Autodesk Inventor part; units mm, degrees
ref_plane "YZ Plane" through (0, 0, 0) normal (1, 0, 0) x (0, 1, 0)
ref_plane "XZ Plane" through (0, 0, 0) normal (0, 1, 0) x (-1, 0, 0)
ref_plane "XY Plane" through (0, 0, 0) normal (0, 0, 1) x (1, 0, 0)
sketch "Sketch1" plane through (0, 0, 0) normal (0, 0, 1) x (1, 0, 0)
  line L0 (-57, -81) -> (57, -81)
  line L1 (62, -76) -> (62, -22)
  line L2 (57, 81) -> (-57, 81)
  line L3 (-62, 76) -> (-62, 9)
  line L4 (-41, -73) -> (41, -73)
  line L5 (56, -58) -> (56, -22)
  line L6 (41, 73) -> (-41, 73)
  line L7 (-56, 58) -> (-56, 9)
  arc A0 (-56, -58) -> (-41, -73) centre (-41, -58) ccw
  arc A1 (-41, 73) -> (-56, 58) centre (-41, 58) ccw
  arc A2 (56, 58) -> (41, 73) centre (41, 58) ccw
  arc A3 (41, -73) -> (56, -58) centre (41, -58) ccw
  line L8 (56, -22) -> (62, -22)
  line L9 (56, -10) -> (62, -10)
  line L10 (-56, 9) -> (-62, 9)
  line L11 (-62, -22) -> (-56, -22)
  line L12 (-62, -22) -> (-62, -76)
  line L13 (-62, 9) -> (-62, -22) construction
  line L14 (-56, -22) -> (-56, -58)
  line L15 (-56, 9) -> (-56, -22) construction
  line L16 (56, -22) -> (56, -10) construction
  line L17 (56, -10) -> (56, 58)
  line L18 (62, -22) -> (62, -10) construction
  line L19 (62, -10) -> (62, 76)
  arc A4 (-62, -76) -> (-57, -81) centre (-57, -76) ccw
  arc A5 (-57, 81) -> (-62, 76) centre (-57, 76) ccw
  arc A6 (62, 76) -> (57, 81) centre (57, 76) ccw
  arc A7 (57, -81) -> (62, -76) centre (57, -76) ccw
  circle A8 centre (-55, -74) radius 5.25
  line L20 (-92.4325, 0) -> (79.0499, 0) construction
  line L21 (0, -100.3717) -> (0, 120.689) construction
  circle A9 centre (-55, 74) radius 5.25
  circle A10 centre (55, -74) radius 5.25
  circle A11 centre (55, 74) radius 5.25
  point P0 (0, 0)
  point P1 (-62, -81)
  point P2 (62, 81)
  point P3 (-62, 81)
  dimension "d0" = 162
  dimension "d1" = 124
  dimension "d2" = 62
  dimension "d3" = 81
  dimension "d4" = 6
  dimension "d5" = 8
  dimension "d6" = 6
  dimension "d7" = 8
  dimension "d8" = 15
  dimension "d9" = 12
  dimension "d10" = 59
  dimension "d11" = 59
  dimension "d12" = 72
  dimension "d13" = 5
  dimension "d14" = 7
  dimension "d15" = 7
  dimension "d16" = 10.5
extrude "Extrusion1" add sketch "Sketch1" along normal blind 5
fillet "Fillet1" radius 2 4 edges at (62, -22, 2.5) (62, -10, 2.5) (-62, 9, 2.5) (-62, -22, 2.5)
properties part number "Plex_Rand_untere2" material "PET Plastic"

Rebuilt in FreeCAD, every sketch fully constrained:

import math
import FreeCAD as App
import Part
import Sketcher

V = App.Vector
Q = App.Units.Quantity


def edges_at(feature, points):
    """Names of the edges that pass closest to the given points."""
    edges = feature.Shape.Edges
    near = lambda p: min(range(len(edges)), key=lambda i: edges[i].distToShape(Part.Vertex(*p))[0])
    return sorted({f"Edge{near(p) + 1}" for p in points})

doc = App.newDocument("Part")
body = doc.addObject("PartDesign::Body", "Body")
body.AllowCompound = True

sketch1 = body.newObject("Sketcher::SketchObject", "Sketch")
sketch1.AttachmentSupport = (doc.getObject("XY_Plane"), [""])
sketch1.MapMode = "FlatFace"
sketch1.addGeometry(Part.ArcOfCircle(Part.Circle(V(-57, -76, 0), V(0, 0, 1), 5), math.radians(180), math.radians(270)), False)
sketch1.addGeometry(Part.LineSegment(V(-57, -81, 0), V(57, -81, 0)), False)
sketch1.addGeometry(Part.ArcOfCircle(Part.Circle(V(57, -76, 0), V(0, 0, 1), 5), math.radians(-90), math.radians(0)), False)
sketch1.addGeometry(Part.LineSegment(V(62, -76, 0), V(62, -22, 0)), False)
sketch1.addGeometry(Part.LineSegment(V(62, -22, 0), V(56, -22, 0)), False)
sketch1.addGeometry(Part.LineSegment(V(56, -22, 0), V(56, -58, 0)), False)
sketch1.addGeometry(Part.ArcOfCircle(Part.Circle(V(41, -58, 0), V(0, 0, 1), 15), math.radians(-90), math.radians(0)), False)
sketch1.addGeometry(Part.LineSegment(V(41, -73, 0), V(-41, -73, 0)), False)
sketch1.addGeometry(Part.ArcOfCircle(Part.Circle(V(-41, -58, 0), V(0, 0, 1), 15), math.radians(180), math.radians(270)), False)
sketch1.addGeometry(Part.LineSegment(V(-56, -58, 0), V(-56, -22, 0)), False)
sketch1.addGeometry(Part.LineSegment(V(-56, -22, 0), V(-62, -22, 0)), False)
sketch1.addGeometry(Part.LineSegment(V(-62, -22, 0), V(-62, -76, 0)), False)
sketch1.addGeometry(Part.Circle(V(-55, -74, 0), V(0, 0, 1), 5.25), False)
sketch1.addGeometry(Part.Circle(V(55, -74, 0), V(0, 0, 1), 5.25), False)
sketch1.addGeometry(Part.ArcOfCircle(Part.Circle(V(57, 76, 0), V(0, 0, 1), 5), math.radians(0), math.radians(90)), False)
sketch1.addGeometry(Part.LineSegment(V(57, 81, 0), V(-57, 81, 0)), False)
sketch1.addGeometry(Part.ArcOfCircle(Part.Circle(V(-57, 76, 0), V(0, 0, 1), 5), math.radians(90), math.radians(180)), False)
sketch1.addGeometry(Part.LineSegment(V(-62, 76, 0), V(-62, 9, 0)), False)
sketch1.addGeometry(Part.LineSegment(V(-62, 9, 0), V(-56, 9, 0)), False)
sketch1.addGeometry(Part.LineSegment(V(-56, 9, 0), V(-56, 58, 0)), False)
sketch1.addGeometry(Part.ArcOfCircle(Part.Circle(V(-41, 58, 0), V(0, 0, 1), 15), math.radians(90), math.radians(180)), False)
sketch1.addGeometry(Part.LineSegment(V(-41, 73, 0), V(41, 73, 0)), False)
sketch1.addGeometry(Part.ArcOfCircle(Part.Circle(V(41, 58, 0), V(0, 0, 1), 15), math.radians(0), math.radians(90)), False)
sketch1.addGeometry(Part.LineSegment(V(56, 58, 0), V(56, -10, 0)), False)
sketch1.addGeometry(Part.LineSegment(V(56, -10, 0), V(62, -10, 0)), False)
sketch1.addGeometry(Part.LineSegment(V(62, -10, 0), V(62, 76, 0)), False)
sketch1.addGeometry(Part.Circle(V(-55, 74, 0), V(0, 0, 1), 5.25), False)
sketch1.addGeometry(Part.Circle(V(55, 74, 0), V(0, 0, 1), 5.25), False)
sketch1.addConstraint(Sketcher.Constraint("Tangent", 0, 2, 1, 1))
sketch1.addConstraint(Sketcher.Constraint("Tangent", 1, 2, 2, 1))
sketch1.addConstraint(Sketcher.Constraint("Tangent", 2, 2, 3, 1))
sketch1.addConstraint(Sketcher.Constraint("Coincident", 3, 2, 4, 1))
sketch1.addConstraint(Sketcher.Constraint("Coincident", 4, 2, 5, 1))
sketch1.addConstraint(Sketcher.Constraint("Tangent", 5, 2, 6, 2))
sketch1.addConstraint(Sketcher.Constraint("Tangent", 6, 1, 7, 1))
sketch1.addConstraint(Sketcher.Constraint("Tangent", 7, 2, 8, 2))
sketch1.addConstraint(Sketcher.Constraint("Tangent", 8, 1, 9, 1))
sketch1.addConstraint(Sketcher.Constraint("Coincident", 9, 2, 10, 1))
sketch1.addConstraint(Sketcher.Constraint("Coincident", 10, 2, 11, 1))
sketch1.addConstraint(Sketcher.Constraint("Tangent", 11, 2, 0, 1))
sketch1.addConstraint(Sketcher.Constraint("Tangent", 14, 2, 15, 1))
sketch1.addConstraint(Sketcher.Constraint("Tangent", 15, 2, 16, 1))
sketch1.addConstraint(Sketcher.Constraint("Tangent", 16, 2, 17, 1))
sketch1.addConstraint(Sketcher.Constraint("Coincident", 17, 2, 18, 1))
sketch1.addConstraint(Sketcher.Constraint("Coincident", 18, 2, 19, 1))
sketch1.addConstraint(Sketcher.Constraint("Tangent", 19, 2, 20, 2))
sketch1.addConstraint(Sketcher.Constraint("Tangent", 20, 1, 21, 1))
sketch1.addConstraint(Sketcher.Constraint("Tangent", 21, 2, 22, 2))
sketch1.addConstraint(Sketcher.Constraint("Tangent", 22, 1, 23, 1))
sketch1.addConstraint(Sketcher.Constraint("Coincident", 23, 2, 24, 1))
sketch1.addConstraint(Sketcher.Constraint("Coincident", 24, 2, 25, 1))
sketch1.addConstraint(Sketcher.Constraint("Tangent", 25, 2, 14, 1))
sketch1.addConstraint(Sketcher.Constraint("Horizontal", 1))
sketch1.addConstraint(Sketcher.Constraint("Vertical", 3))
sketch1.addConstraint(Sketcher.Constraint("Horizontal", 4))
sketch1.addConstraint(Sketcher.Constraint("Vertical", 5))
sketch1.addConstraint(Sketcher.Constraint("Horizontal", 7))
sketch1.addConstraint(Sketcher.Constraint("Vertical", 9))
sketch1.addConstraint(Sketcher.Constraint("Horizontal", 10))
sketch1.addConstraint(Sketcher.Constraint("Vertical", 11))
sketch1.addConstraint(Sketcher.Constraint("Horizontal", 15))
sketch1.addConstraint(Sketcher.Constraint("Vertical", 17))
sketch1.addConstraint(Sketcher.Constraint("Horizontal", 18))
sketch1.addConstraint(Sketcher.Constraint("Vertical", 19))
sketch1.addConstraint(Sketcher.Constraint("Horizontal", 21))
sketch1.addConstraint(Sketcher.Constraint("Vertical", 23))
sketch1.addConstraint(Sketcher.Constraint("Horizontal", 24))
sketch1.addConstraint(Sketcher.Constraint("Vertical", 25))
sketch1.addConstraint(Sketcher.Constraint("Equal", 0, 2))
sketch1.addConstraint(Sketcher.Constraint("Equal", 6, 8))
sketch1.addConstraint(Sketcher.Constraint("Equal", 12, 13))
sketch1.addConstraint(Sketcher.Constraint("Equal", 2, 14))
sketch1.addConstraint(Sketcher.Constraint("Equal", 14, 16))
sketch1.addConstraint(Sketcher.Constraint("Equal", 8, 20))
sketch1.addConstraint(Sketcher.Constraint("Equal", 20, 22))
sketch1.addConstraint(Sketcher.Constraint("Equal", 13, 26))
sketch1.addConstraint(Sketcher.Constraint("Equal", 26, 27))
sketch1.addConstraint(Sketcher.Constraint("Symmetric", 0, 3, 14, 3, -1, 1))
sketch1.addConstraint(Sketcher.Constraint("Symmetric", 6, 3, 20, 3, -1, 1))
sketch1.addConstraint(Sketcher.Constraint("Symmetric", 13, 3, 26, 3, -1, 1))
sketch1.addConstraint(Sketcher.Constraint("Symmetric", 12, 3, 27, 3, -1, 1))
sketch1.addConstraint(Sketcher.Constraint("Symmetric", 12, 3, 13, 3, -2))
sketch1.addConstraint(Sketcher.Constraint("Symmetric", 4, 2, 9, 2, -2))
sketch1.addConstraint(Sketcher.Constraint("Vertical", 2, 3, 14, 3))
sketch1.addConstraint(Sketcher.Constraint("Vertical", 0, 3, 16, 3))
sketch1.addConstraint(Sketcher.Constraint("Vertical", 6, 3, 22, 3))
sketch1.addConstraint(Sketcher.Constraint("Radius", 0, Q("5 mm")))
sketch1.addConstraint(Sketcher.Constraint("Radius", 6, Q("15 mm")))
sketch1.addConstraint(Sketcher.Constraint("Diameter", 12, Q("10.5 mm")))
sketch1.addConstraint(Sketcher.Constraint("DistanceX", 4, 2, 4, 1, Q("6 mm")))
sketch1.addConstraint(Sketcher.Constraint("DistanceY", 0, 2, -1, 1, Q("81 mm")))
sketch1.addConstraint(Sketcher.Constraint("DistanceX", -1, 1, 2, 2, Q("62 mm")))
sketch1.addConstraint(Sketcher.Constraint("DistanceY", 0, 2, 12, 3, Q("7 mm")))
sketch1.addConstraint(Sketcher.Constraint("DistanceX", 13, 3, 2, 2, Q("7 mm")))
sketch1.addConstraint(Sketcher.Constraint("DistanceY", 1, 2, 3, 2, Q("59 mm")))
sketch1.addConstraint(Sketcher.Constraint("DistanceY", 1, 2, 6, 1, Q("8 mm")))
sketch1.addConstraint(Sketcher.Constraint("DistanceY", 4, 2, 23, 2, Q("12 mm")))
sketch1.addConstraint(Sketcher.Constraint("DistanceY", 17, 2, 17, 1, Q("67 mm")))
pad1 = body.newObject("PartDesign::Pad", "Pad")
pad1.Profile = sketch1
pad1.Length = 5
doc.recompute()

fillet = body.newObject("PartDesign::Fillet", "Fillet")
fillet.Base = (pad1, edges_at(pad1, [
    (62, -22, 2.5),
    (62, -10, 2.5),
    (-62, 9, 2.5),
    (-62, -22, 2.5),
]))
fillet.Radius = 2

doc.recompute()
